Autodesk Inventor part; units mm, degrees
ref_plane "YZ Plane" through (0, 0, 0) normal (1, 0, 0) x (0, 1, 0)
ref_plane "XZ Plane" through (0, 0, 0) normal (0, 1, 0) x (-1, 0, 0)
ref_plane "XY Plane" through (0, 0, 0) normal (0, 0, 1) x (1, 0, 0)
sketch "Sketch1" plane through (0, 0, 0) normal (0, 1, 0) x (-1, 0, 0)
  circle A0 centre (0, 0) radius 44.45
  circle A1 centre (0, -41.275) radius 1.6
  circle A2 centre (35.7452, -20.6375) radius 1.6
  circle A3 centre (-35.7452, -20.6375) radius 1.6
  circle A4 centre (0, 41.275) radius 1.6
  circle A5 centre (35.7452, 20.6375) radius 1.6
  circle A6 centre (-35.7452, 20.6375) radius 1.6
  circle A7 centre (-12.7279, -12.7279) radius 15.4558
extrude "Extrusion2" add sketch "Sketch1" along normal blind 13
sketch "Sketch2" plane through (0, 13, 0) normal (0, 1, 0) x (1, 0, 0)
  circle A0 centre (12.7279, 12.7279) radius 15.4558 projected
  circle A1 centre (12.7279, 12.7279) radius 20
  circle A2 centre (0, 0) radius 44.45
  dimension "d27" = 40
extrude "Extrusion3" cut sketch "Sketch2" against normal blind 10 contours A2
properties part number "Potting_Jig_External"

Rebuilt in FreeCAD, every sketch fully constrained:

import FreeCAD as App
import Part
import Sketcher
Q = App.Units.Quantity

doc = App.newDocument("Part")
body = doc.addObject("PartDesign::Body", "Body")

sketch1 = body.newObject("Sketcher::SketchObject", "Sketch")
sketch1.AttachmentSupport = (doc.getObject("XZ_Plane"), [""])
sketch1.MapMode = "FlatFace"
sketch1.addGeometry([
    Part.Circle(App.Vector(0, 0, 0), App.Vector(0, 0, 1), 44.5),
    Part.Circle(App.Vector(35.7, -20.6, 0), App.Vector(0, 0, 1), 1.6),
    Part.Circle(App.Vector(12.7, -12.7, 0), App.Vector(0, 0, 1), 15.5),
    Part.Circle(App.Vector(0, -41.3, 0), App.Vector(0, 0, 1), 1.6),
    Part.Circle(App.Vector(-35.7, -20.6, 0), App.Vector(0, 0, 1), 1.6),
    Part.Circle(App.Vector(35.7, 20.6, 0), App.Vector(0, 0, 1), 1.6),
    Part.Circle(App.Vector(-35.7, 20.6, 0), App.Vector(0, 0, 1), 1.6),
    Part.Circle(App.Vector(0, 41.3, 0), App.Vector(0, 0, 1), 1.6),
], False)
sketch1.addConstraint([
    Sketcher.Constraint("Coincident", 0, 3, -1, 1),
    Sketcher.Constraint("Equal", 1, 3),
    Sketcher.Constraint("Equal", 3, 4),
    Sketcher.Constraint("Equal", 4, 5),
    Sketcher.Constraint("Equal", 5, 6),
    Sketcher.Constraint("Equal", 6, 7),
    Sketcher.Constraint("Symmetric", 4, 3, 5, 3, -1, 1),
    Sketcher.Constraint("Symmetric", 1, 3, 6, 3, -1, 1),
    Sketcher.Constraint("Symmetric", 3, 3, 7, 3, -1, 1),
    Sketcher.Constraint("Symmetric", 1, 3, 4, 3, -2),
    Sketcher.Constraint("PointOnObject", 3, 3, -2),
    Sketcher.Constraint("Diameter", 0, Q("3.5 in")),
    Sketcher.Constraint("Diameter", 2, Q("1.217 in")),
    Sketcher.Constraint("Diameter", 1, Q("3.2 mm")),
    Sketcher.Constraint("DistanceY", 1, 3, -1, 1, Q("0.8125 in")),
    Sketcher.Constraint("DistanceY", 3, 3, -1, 1, Q("1.625 in")),
    Sketcher.Constraint("DistanceX", -1, 1, 1, 3, Q("1.4073 in")),
    Sketcher.Constraint("DistanceX", -1, 1, 2, 3, Q("0.5011 in")),
    Sketcher.Constraint("DistanceY", 2, 3, -1, 1, Q("0.5011 in")),
])
pad1 = body.newObject("PartDesign::Pad", "Pad")
pad1.Profile = sketch1
pad1.Length = Q("0.511811 in")
pad1.Reversed = True

sketch2 = body.newObject("Sketcher::SketchObject", "Sketch001")
sketch2.AttachmentSupport = (doc.getObject("XZ_Plane"), [""])
sketch2.MapMode = "FlatFace"
sketch2.AttachmentOffset = App.Placement(App.Vector(0, 0, -0.511811 * 25.4), App.Rotation())
sketch2.addGeometry([
    Part.Circle(App.Vector(0, 0, 0), App.Vector(0, 0, 1), 44),
    Part.Circle(App.Vector(13, -13, 0), App.Vector(0, 0, 1), 20),
], False)
sketch2.addConstraint([
    Sketcher.Constraint("Coincident", 0, 3, -1, 1),
    Sketcher.Constraint("Diameter", 0, Q("3.5 in")),
    Sketcher.Constraint("Diameter", 1, Q("1.5748 in")),
    Sketcher.Constraint("DistanceX", -1, 1, 1, 3, Q("0.5011 in")),
    Sketcher.Constraint("DistanceY", 1, 3, -1, 1, Q("0.5011 in")),
])
pocket1 = body.newObject("PartDesign::Pocket", "Pocket")
pocket1.Profile = sketch2
pocket1.Length = Q("0.3937008 in")
pocket1.Reversed = True

doc.recompute()
